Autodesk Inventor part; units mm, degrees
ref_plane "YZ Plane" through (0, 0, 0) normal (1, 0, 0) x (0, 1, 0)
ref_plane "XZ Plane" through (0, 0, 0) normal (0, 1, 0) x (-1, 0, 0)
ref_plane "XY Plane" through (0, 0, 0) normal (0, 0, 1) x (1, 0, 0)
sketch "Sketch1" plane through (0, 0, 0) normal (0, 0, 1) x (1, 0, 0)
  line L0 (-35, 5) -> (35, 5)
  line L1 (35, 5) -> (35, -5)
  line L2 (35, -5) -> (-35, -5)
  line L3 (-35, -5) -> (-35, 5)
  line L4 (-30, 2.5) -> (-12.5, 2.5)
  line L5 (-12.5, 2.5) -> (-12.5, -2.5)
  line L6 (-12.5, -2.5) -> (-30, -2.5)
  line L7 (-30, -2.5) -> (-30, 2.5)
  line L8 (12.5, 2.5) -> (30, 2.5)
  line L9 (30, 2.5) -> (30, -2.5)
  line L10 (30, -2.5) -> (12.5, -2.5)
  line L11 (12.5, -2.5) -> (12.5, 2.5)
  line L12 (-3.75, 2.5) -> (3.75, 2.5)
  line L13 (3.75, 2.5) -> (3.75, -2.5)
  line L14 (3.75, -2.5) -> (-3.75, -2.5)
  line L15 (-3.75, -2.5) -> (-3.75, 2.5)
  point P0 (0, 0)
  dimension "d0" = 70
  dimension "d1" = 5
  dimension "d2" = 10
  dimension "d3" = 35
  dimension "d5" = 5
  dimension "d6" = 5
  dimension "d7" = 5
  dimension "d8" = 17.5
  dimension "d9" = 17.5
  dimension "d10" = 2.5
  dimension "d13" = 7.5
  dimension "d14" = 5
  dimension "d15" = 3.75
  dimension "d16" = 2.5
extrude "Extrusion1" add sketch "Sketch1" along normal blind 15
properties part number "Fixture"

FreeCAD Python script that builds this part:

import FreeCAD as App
import Part
import Sketcher

V = App.Vector
Q = App.Units.Quantity


def add_polygon(sketch, points):
    """Adds a closed chain of lines whose ends are joined by coincident constraints."""
    first, n = sketch.GeometryCount, len(points)
    for a, b in zip(points, points[1:] + points[:1]):
        sketch.addGeometry(Part.LineSegment(App.Vector(*a, 0), App.Vector(*b, 0)), False)
    for i in range(n):
        sketch.addConstraint(Sketcher.Constraint("Coincident", first + i, 2, first + (i + 1) % n, 1))

doc = App.newDocument("Part")
body = doc.addObject("PartDesign::Body", "Body")

sketch1 = body.newObject("Sketcher::SketchObject", "Sketch")
sketch1.AttachmentSupport = (doc.getObject("XY_Plane"), [""])
sketch1.MapMode = "FlatFace"
add_polygon(sketch1, [(35, 5), (-35, 5), (-35, -5), (35, -5)])
add_polygon(sketch1, [(-30, -2.5), (-30, 2.5), (-12.5, 2.5), (-12.5, -2.5)])
add_polygon(sketch1, [(-3.75, -2.5), (-3.75, 2.5), (3.75, 2.5), (3.75, -2.5)])
add_polygon(sketch1, [(12.5, -2.5), (12.5, 2.5), (30, 2.5), (30, -2.5)])
sketch1.addConstraint(Sketcher.Constraint("Horizontal", 0))
sketch1.addConstraint(Sketcher.Constraint("Vertical", 1))
sketch1.addConstraint(Sketcher.Constraint("Horizontal", 2))
sketch1.addConstraint(Sketcher.Constraint("Vertical", 3))
sketch1.addConstraint(Sketcher.Constraint("Vertical", 4))
sketch1.addConstraint(Sketcher.Constraint("Horizontal", 5))
sketch1.addConstraint(Sketcher.Constraint("Vertical", 6))
sketch1.addConstraint(Sketcher.Constraint("Horizontal", 7))
sketch1.addConstraint(Sketcher.Constraint("Vertical", 8))
sketch1.addConstraint(Sketcher.Constraint("Horizontal", 9))
sketch1.addConstraint(Sketcher.Constraint("Vertical", 10))
sketch1.addConstraint(Sketcher.Constraint("Horizontal", 11))
sketch1.addConstraint(Sketcher.Constraint("Vertical", 12))
sketch1.addConstraint(Sketcher.Constraint("Horizontal", 13))
sketch1.addConstraint(Sketcher.Constraint("Vertical", 14))
sketch1.addConstraint(Sketcher.Constraint("Horizontal", 15))
sketch1.addConstraint(Sketcher.Constraint("Symmetric", 0, 2, 2, 2, -1, 1))
sketch1.addConstraint(Sketcher.Constraint("Symmetric", 8, 2, 10, 2, -1, 1))
sketch1.addConstraint(Sketcher.Constraint("Symmetric", 6, 2, 12, 2, -1, 1))
sketch1.addConstraint(Sketcher.Constraint("Symmetric", 4, 2, 14, 2, -1, 1))
sketch1.addConstraint(Sketcher.Constraint("Horizontal", 5, 2, 8, 2))
sketch1.addConstraint(Sketcher.Constraint("Horizontal", 7, 2, 10, 2))
sketch1.addConstraint(Sketcher.Constraint("DistanceX", 0, 2, 0, 1, Q("70 mm")))
sketch1.addConstraint(Sketcher.Constraint("DistanceY", 1, 2, 1, 1, Q("10 mm")))
sketch1.addConstraint(Sketcher.Constraint("DistanceY", 4, 1, 4, 2, Q("5 mm")))
sketch1.addConstraint(Sketcher.Constraint("DistanceX", 5, 1, 5, 2, Q("17.5 mm")))
sketch1.addConstraint(Sketcher.Constraint("DistanceX", 9, 1, 9, 2, Q("7.5 mm")))
sketch1.addConstraint(Sketcher.Constraint("DistanceX", 0, 2, 4, 2, Q("5 mm")))
pad1 = body.newObject("PartDesign::Pad", "Pad")
pad1.Profile = sketch1
pad1.Length = 15

doc.recompute()
